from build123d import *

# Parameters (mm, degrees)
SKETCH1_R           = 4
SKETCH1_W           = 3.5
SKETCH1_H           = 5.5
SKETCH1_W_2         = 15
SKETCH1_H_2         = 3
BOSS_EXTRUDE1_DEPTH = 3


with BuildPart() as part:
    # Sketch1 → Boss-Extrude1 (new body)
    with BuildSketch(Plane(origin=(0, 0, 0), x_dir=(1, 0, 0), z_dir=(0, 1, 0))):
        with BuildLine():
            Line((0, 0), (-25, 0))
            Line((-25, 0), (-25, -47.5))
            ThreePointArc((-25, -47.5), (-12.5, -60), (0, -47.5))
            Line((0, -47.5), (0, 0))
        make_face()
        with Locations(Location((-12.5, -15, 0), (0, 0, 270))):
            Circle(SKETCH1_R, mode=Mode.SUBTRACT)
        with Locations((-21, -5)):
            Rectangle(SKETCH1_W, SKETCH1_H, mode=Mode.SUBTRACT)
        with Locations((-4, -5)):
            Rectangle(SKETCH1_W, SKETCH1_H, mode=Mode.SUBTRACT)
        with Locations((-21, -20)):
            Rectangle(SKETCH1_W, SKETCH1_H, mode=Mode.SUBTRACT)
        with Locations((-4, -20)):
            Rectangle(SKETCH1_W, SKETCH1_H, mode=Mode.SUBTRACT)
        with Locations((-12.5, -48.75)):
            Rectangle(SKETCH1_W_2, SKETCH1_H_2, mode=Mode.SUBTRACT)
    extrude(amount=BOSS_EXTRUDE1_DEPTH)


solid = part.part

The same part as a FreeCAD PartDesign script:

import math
import FreeCAD as App
import Part
import Sketcher

V = App.Vector

doc = App.newDocument("Part")
params = doc.addObject("Spreadsheet::Sheet", "Params")
for row, (alias, value) in enumerate([
    ("sketch1_diameter", "8 mm"),
    ("sketch1_radius", "12.5 mm"),
    ("sketch1_width", "15 mm"),
    ("sketch1_height", "3 mm"),
    ("sketch1_width2", "3.5 mm"),
    ("pad1_length", "3 mm"),
], start=1):
    params.set(f"A{row}", alias)
    params.set(f"B{row}", "=" + value)
    params.setAlias(f"B{row}", alias)

body = doc.addObject("PartDesign::Body", "Body")

# Sketch on XZ plane
sketch1 = doc.addObject("Sketcher::SketchObject", "Sketch")
body.addObject(sketch1)
sketch1.AttachmentSupport = (doc.XZ_Plane, [""])
sketch1.MapMode = "FlatFace"
sketch1.addGeometry(Part.LineSegment(V(0, 0, 0), V(-25, 0, 0)), False)
sketch1.addGeometry(Part.LineSegment(V(-25, 0, 0), V(-25, 47.5, 0)), False)
sketch1.addGeometry(Part.ArcOfCircle(Part.Circle(V(-12.5, 47.5, 0), V(0, 0, 1), 12.5), math.radians(0), math.radians(180)), False)
sketch1.addGeometry(Part.LineSegment(V(0, 47.5, 0), V(0, 0, 0)), False)
sketch1.addGeometry(Part.LineSegment(V(-5, 50.25, 0), V(-20, 50.25, 0)), False)
sketch1.addGeometry(Part.LineSegment(V(-20, 50.25, 0), V(-20, 47.25, 0)), False)
sketch1.addGeometry(Part.LineSegment(V(-20, 47.25, 0), V(-5, 47.25, 0)), False)
sketch1.addGeometry(Part.LineSegment(V(-5, 47.25, 0), V(-5, 50.25, 0)), False)
sketch1.addGeometry(Part.LineSegment(V(-19.25, 22.75, 0), V(-22.75, 22.75, 0)), False)
sketch1.addGeometry(Part.LineSegment(V(-22.75, 22.75, 0), V(-22.75, 17.25, 0)), False)
sketch1.addGeometry(Part.LineSegment(V(-22.75, 17.25, 0), V(-19.25, 17.25, 0)), False)
sketch1.addGeometry(Part.LineSegment(V(-19.25, 17.25, 0), V(-19.25, 22.75, 0)), False)
sketch1.addGeometry(Part.LineSegment(V(-19.25, 7.75, 0), V(-22.75, 7.75, 0)), False)
sketch1.addGeometry(Part.LineSegment(V(-22.75, 7.75, 0), V(-22.75, 2.25, 0)), False)
sketch1.addGeometry(Part.LineSegment(V(-22.75, 2.25, 0), V(-19.25, 2.25, 0)), False)
sketch1.addGeometry(Part.LineSegment(V(-19.25, 2.25, 0), V(-19.25, 7.75, 0)), False)
sketch1.addGeometry(Part.Circle(V(-12.5, 15, 0), V(0, 0, 1), 4), False)
sketch1.addGeometry(Part.LineSegment(V(-2.25, 22.75, 0), V(-5.75, 22.75, 0)), False)
sketch1.addGeometry(Part.LineSegment(V(-5.75, 22.75, 0), V(-5.75, 17.25, 0)), False)
sketch1.addGeometry(Part.LineSegment(V(-5.75, 17.25, 0), V(-2.25, 17.25, 0)), False)
sketch1.addGeometry(Part.LineSegment(V(-2.25, 17.25, 0), V(-2.25, 22.75, 0)), False)
sketch1.addGeometry(Part.LineSegment(V(-2.25, 7.75, 0), V(-5.75, 7.75, 0)), False)
sketch1.addGeometry(Part.LineSegment(V(-5.75, 7.75, 0), V(-5.75, 2.25, 0)), False)
sketch1.addGeometry(Part.LineSegment(V(-5.75, 2.25, 0), V(-2.25, 2.25, 0)), False)
sketch1.addGeometry(Part.LineSegment(V(-2.25, 2.25, 0), V(-2.25, 7.75, 0)), False)
sketch1.addConstraint(Sketcher.Constraint("Coincident", 0, 2, 1, 1))
sketch1.addConstraint(Sketcher.Constraint("Tangent", 1, 2, 2, 2))
sketch1.addConstraint(Sketcher.Constraint("Tangent", 2, 1, 3, 1))
sketch1.addConstraint(Sketcher.Constraint("Coincident", 3, 2, 0, 1))
sketch1.addConstraint(Sketcher.Constraint("Coincident", 4, 2, 5, 1))
sketch1.addConstraint(Sketcher.Constraint("Coincident", 5, 2, 6, 1))
sketch1.addConstraint(Sketcher.Constraint("Coincident", 6, 2, 7, 1))
sketch1.addConstraint(Sketcher.Constraint("Coincident", 7, 2, 4, 1))
sketch1.addConstraint(Sketcher.Constraint("Coincident", 8, 2, 9, 1))
sketch1.addConstraint(Sketcher.Constraint("Coincident", 9, 2, 10, 1))
sketch1.addConstraint(Sketcher.Constraint("Coincident", 10, 2, 11, 1))
sketch1.addConstraint(Sketcher.Constraint("Coincident", 11, 2, 8, 1))
sketch1.addConstraint(Sketcher.Constraint("Coincident", 12, 2, 13, 1))
sketch1.addConstraint(Sketcher.Constraint("Coincident", 13, 2, 14, 1))
sketch1.addConstraint(Sketcher.Constraint("Coincident", 14, 2, 15, 1))
sketch1.addConstraint(Sketcher.Constraint("Coincident", 15, 2, 12, 1))
sketch1.addConstraint(Sketcher.Constraint("Coincident", 17, 2, 18, 1))
sketch1.addConstraint(Sketcher.Constraint("Coincident", 18, 2, 19, 1))
sketch1.addConstraint(Sketcher.Constraint("Coincident", 19, 2, 20, 1))
sketch1.addConstraint(Sketcher.Constraint("Coincident", 20, 2, 17, 1))
sketch1.addConstraint(Sketcher.Constraint("Coincident", 21, 2, 22, 1))
sketch1.addConstraint(Sketcher.Constraint("Coincident", 22, 2, 23, 1))
sketch1.addConstraint(Sketcher.Constraint("Coincident", 23, 2, 24, 1))
sketch1.addConstraint(Sketcher.Constraint("Coincident", 24, 2, 21, 1))
sketch1.addConstraint(Sketcher.Constraint("Horizontal", 0))
sketch1.addConstraint(Sketcher.Constraint("Vertical", 1))
sketch1.addConstraint(Sketcher.Constraint("Vertical", 3))
sketch1.addConstraint(Sketcher.Constraint("Horizontal", 4))
sketch1.addConstraint(Sketcher.Constraint("Vertical", 5))
sketch1.addConstraint(Sketcher.Constraint("Horizontal", 6))
sketch1.addConstraint(Sketcher.Constraint("Vertical", 7))
sketch1.addConstraint(Sketcher.Constraint("Horizontal", 8))
sketch1.addConstraint(Sketcher.Constraint("Vertical", 9))
sketch1.addConstraint(Sketcher.Constraint("Horizontal", 10))
sketch1.addConstraint(Sketcher.Constraint("Vertical", 11))
sketch1.addConstraint(Sketcher.Constraint("Horizontal", 12))
sketch1.addConstraint(Sketcher.Constraint("Vertical", 13))
sketch1.addConstraint(Sketcher.Constraint("Horizontal", 14))
sketch1.addConstraint(Sketcher.Constraint("Vertical", 15))
sketch1.addConstraint(Sketcher.Constraint("Horizontal", 17))
sketch1.addConstraint(Sketcher.Constraint("Vertical", 18))
sketch1.addConstraint(Sketcher.Constraint("Horizontal", 19))
sketch1.addConstraint(Sketcher.Constraint("Vertical", 20))
sketch1.addConstraint(Sketcher.Constraint("Horizontal", 21))
sketch1.addConstraint(Sketcher.Constraint("Vertical", 22))
sketch1.addConstraint(Sketcher.Constraint("Horizontal", 23))
sketch1.addConstraint(Sketcher.Constraint("Vertical", 24))
sketch1.addConstraint(Sketcher.Constraint("Coincident", 3, 2, -1, 1))
sketch1.addConstraint(Sketcher.Constraint("Horizontal", 11, 2, 17, 2))
sketch1.addConstraint(Sketcher.Constraint("Horizontal", 10, 2, 18, 2))
sketch1.addConstraint(Sketcher.Constraint("Horizontal", 15, 2, 21, 2))
sketch1.addConstraint(Sketcher.Constraint("Horizontal", 14, 2, 22, 2))
sketch1.addConstraint(Sketcher.Constraint("Vertical", 2, 3, 16, 3))
sketch1.addConstraint(Sketcher.Constraint("Vertical", 9, 2, 12, 2))
sketch1.addConstraint(Sketcher.Constraint("Vertical", 11, 2, 14, 2))
sketch1.addConstraint(Sketcher.Constraint("Vertical", 18, 2, 21, 2))
sketch1.addConstraint(Sketcher.Constraint("Vertical", 20, 2, 23, 2))
sketch1.addConstraint(Sketcher.Constraint("Equal", 14, 17))
sketch1.addConstraint(Sketcher.Constraint("Equal", 11, 13))
sketch1.addConstraint(Sketcher.Constraint("Diameter", 16, 8.0))
sketch1.addConstraint(Sketcher.Constraint("Radius", 2, 12.5))
sketch1.addConstraint(Sketcher.Constraint("DistanceX", 4, 2, 4, 1, 15.0))
sketch1.addConstraint(Sketcher.Constraint("DistanceY", 5, 2, 5, 1, 3.0))
sketch1.addConstraint(Sketcher.Constraint("DistanceX", 8, 2, 8, 1, 3.5))
sketch1.addConstraint(Sketcher.Constraint("DistanceY", 1, 1, 1, 2, 47.5))
sketch1.addConstraint(Sketcher.Constraint("DistanceY", 9, 2, 9, 1, 5.5))
sketch1.addConstraint(Sketcher.Constraint("DistanceY", -1, 1, 16, 3, 15.0))
sketch1.addConstraint(Sketcher.Constraint("DistanceX", 4, 2, -1, 1, 20.0))
sketch1.addConstraint(Sketcher.Constraint("DistanceY", 9, 2, 5, 2, 30.0))
sketch1.addConstraint(Sketcher.Constraint("DistanceY", 12, 2, 8, 2, 15.0))
sketch1.addConstraint(Sketcher.Constraint("DistanceX", 8, 2, 17, 2, 17.0))
sketch1.addConstraint(Sketcher.Constraint("DistanceY", -1, 1, 4, 2, 50.25))
sketch1.addConstraint(Sketcher.Constraint("DistanceX", 8, 2, -1, 1, 22.75))
sketch1.setExpression("Constraints[59]", "Params.sketch1_diameter")
sketch1.setExpression("Constraints[60]", "Params.sketch1_radius")
sketch1.setExpression("Constraints[61]", "Params.sketch1_width")
sketch1.setExpression("Constraints[62]", "Params.sketch1_height")
sketch1.setExpression("Constraints[63]", "Params.sketch1_width2")
pad1 = doc.addObject("PartDesign::Pad", "Pad")
body.addObject(pad1)
pad1.Profile = sketch1
pad1.setExpression("Length", "Params.pad1_length")
pad1.Reversed = True

doc.recompute()
